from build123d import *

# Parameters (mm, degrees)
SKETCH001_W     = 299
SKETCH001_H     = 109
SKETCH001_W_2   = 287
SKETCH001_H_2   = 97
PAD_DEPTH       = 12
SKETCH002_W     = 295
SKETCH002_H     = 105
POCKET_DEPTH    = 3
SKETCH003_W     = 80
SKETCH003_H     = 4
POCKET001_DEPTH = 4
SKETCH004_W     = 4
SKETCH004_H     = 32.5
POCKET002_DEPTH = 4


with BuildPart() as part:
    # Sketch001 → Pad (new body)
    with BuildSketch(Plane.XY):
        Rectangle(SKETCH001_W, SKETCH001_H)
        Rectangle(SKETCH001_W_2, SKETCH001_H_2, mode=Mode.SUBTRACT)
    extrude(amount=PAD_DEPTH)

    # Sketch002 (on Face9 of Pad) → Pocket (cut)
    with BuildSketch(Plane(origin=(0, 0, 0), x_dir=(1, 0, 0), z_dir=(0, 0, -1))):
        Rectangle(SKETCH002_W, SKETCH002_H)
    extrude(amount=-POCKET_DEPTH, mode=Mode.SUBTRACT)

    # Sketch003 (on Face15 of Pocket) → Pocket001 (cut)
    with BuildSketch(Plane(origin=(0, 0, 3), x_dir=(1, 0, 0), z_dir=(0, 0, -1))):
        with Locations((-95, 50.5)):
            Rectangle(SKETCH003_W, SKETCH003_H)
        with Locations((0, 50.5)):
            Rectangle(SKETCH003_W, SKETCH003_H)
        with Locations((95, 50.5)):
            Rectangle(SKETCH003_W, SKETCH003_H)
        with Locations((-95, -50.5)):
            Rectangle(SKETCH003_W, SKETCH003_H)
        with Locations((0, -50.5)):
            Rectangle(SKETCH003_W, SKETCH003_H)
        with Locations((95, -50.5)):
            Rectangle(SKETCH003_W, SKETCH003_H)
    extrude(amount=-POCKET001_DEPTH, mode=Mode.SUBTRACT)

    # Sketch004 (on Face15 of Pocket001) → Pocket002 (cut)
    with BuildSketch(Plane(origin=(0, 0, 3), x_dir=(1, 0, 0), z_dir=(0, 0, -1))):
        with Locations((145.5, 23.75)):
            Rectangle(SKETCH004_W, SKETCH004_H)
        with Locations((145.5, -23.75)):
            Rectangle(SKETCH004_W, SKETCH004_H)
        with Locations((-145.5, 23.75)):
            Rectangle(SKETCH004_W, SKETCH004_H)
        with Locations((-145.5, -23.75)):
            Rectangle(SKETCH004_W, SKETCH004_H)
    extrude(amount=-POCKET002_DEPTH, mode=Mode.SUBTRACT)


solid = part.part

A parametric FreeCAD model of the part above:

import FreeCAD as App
import Part
import Sketcher
from FreeCAD import Vector


def add_polygon(sketch, points):
    """Adds a closed chain of lines whose ends are joined by coincident constraints."""
    first, n = sketch.GeometryCount, len(points)
    for a, b in zip(points, points[1:] + points[:1]):
        sketch.addGeometry(Part.LineSegment(App.Vector(*a, 0), App.Vector(*b, 0)), False)
    for i in range(n):
        sketch.addConstraint(Sketcher.Constraint("Coincident", first + i, 2, first + (i + 1) % n, 1))

doc = App.newDocument("Part")
body = doc.addObject("PartDesign::Body", "Body")

sketch1 = body.newObject("Sketcher::SketchObject", "Sketch")
sketch1.AttachmentSupport = (doc.getObject("XY_Plane"), [""])
sketch1.MapMode = "FlatFace"
add_polygon(sketch1, [(-150, 54), (-150, -54), (150, -54), (150, 54)])
add_polygon(sketch1, [(144, -48), (-144, -48), (-144, 48), (144, 48)])
sketch1.addConstraint(Sketcher.Constraint("Vertical", 0))
sketch1.addConstraint(Sketcher.Constraint("Horizontal", 1))
sketch1.addConstraint(Sketcher.Constraint("Vertical", 2))
sketch1.addConstraint(Sketcher.Constraint("Horizontal", 3))
sketch1.addConstraint(Sketcher.Constraint("Horizontal", 4))
sketch1.addConstraint(Sketcher.Constraint("Vertical", 5))
sketch1.addConstraint(Sketcher.Constraint("Horizontal", 6))
sketch1.addConstraint(Sketcher.Constraint("Vertical", 7))
sketch1.addConstraint(Sketcher.Constraint("Symmetric", 0, 2, 2, 2, -1, 1))
sketch1.addConstraint(Sketcher.Constraint("Symmetric", 4, 2, 6, 2, -1, 1))
sketch1.addConstraint(Sketcher.Constraint("DistanceX", 1, 1, 1, 2, 299.0))
sketch1.addConstraint(Sketcher.Constraint("DistanceX", 4, 2, 4, 1, 287.0))
sketch1.addConstraint(Sketcher.Constraint("DistanceY", 0, 2, 0, 1, 109.0))
sketch1.addConstraint(Sketcher.Constraint("DistanceY", 5, 1, 5, 2, 97.0))
pad1 = body.newObject("PartDesign::Pad", "Pad")
pad1.Profile = sketch1
pad1.Length = 12

sketch2 = body.newObject("Sketcher::SketchObject", "Sketch001")
sketch2.AttachmentSupport = (doc.getObject("XY_Plane"), [""])
sketch2.MapMode = "FlatFace"
add_polygon(sketch2, [(-148, -52), (-148, 52), (148, 52), (148, -52)])
sketch2.addConstraint(Sketcher.Constraint("Vertical", 0))
sketch2.addConstraint(Sketcher.Constraint("Horizontal", 1))
sketch2.addConstraint(Sketcher.Constraint("Vertical", 2))
sketch2.addConstraint(Sketcher.Constraint("Horizontal", 3))
sketch2.addConstraint(Sketcher.Constraint("Symmetric", 0, 2, 2, 2, -1, 1))
sketch2.addConstraint(Sketcher.Constraint("DistanceX", 1, 1, 1, 2, 295.0))
sketch2.addConstraint(Sketcher.Constraint("DistanceY", 0, 1, 0, 2, 105.0))
pocket1 = body.newObject("PartDesign::Pocket", "Pocket")
pocket1.Profile = sketch2
pocket1.Length = 3
pocket1.Reversed = True

sketch3 = body.newObject("Sketcher::SketchObject", "Sketch002")
sketch3.AttachmentSupport = (doc.getObject("XY_Plane"), [""])
sketch3.MapMode = "FlatFace"
sketch3.AttachmentOffset = App.Placement(Vector(0, 0, 3), App.Rotation())
add_polygon(sketch3, [(-135, -52.5), (-135, -48.5), (-55, -48.5), (-55, -52.5)])
add_polygon(sketch3, [(-40, -52.5), (-40, -48.5), (40, -48.5), (40, -52.5)])
add_polygon(sketch3, [(55, -52.5), (55, -48.5), (135, -48.5), (135, -52.5)])
add_polygon(sketch3, [(-135, 48.5), (-135, 52.5), (-55, 52.5), (-55, 48.5)])
add_polygon(sketch3, [(-40, 48.5), (-40, 52.5), (40, 52.5), (40, 48.5)])
add_polygon(sketch3, [(55, 48.5), (55, 52.5), (135, 52.5), (135, 48.5)])
sketch3.addConstraint(Sketcher.Constraint("Vertical", 0))
sketch3.addConstraint(Sketcher.Constraint("Horizontal", 1))
sketch3.addConstraint(Sketcher.Constraint("Vertical", 2))
sketch3.addConstraint(Sketcher.Constraint("Horizontal", 3))
sketch3.addConstraint(Sketcher.Constraint("Vertical", 4))
sketch3.addConstraint(Sketcher.Constraint("Horizontal", 5))
sketch3.addConstraint(Sketcher.Constraint("Vertical", 6))
sketch3.addConstraint(Sketcher.Constraint("Horizontal", 7))
sketch3.addConstraint(Sketcher.Constraint("Vertical", 8))
sketch3.addConstraint(Sketcher.Constraint("Horizontal", 9))
sketch3.addConstraint(Sketcher.Constraint("Vertical", 10))
sketch3.addConstraint(Sketcher.Constraint("Horizontal", 11))
sketch3.addConstraint(Sketcher.Constraint("Vertical", 12))
sketch3.addConstraint(Sketcher.Constraint("Horizontal", 13))
sketch3.addConstraint(Sketcher.Constraint("Vertical", 14))
sketch3.addConstraint(Sketcher.Constraint("Horizontal", 15))
sketch3.addConstraint(Sketcher.Constraint("Vertical", 16))
sketch3.addConstraint(Sketcher.Constraint("Horizontal", 17))
sketch3.addConstraint(Sketcher.Constraint("Vertical", 18))
sketch3.addConstraint(Sketcher.Constraint("Horizontal", 19))
sketch3.addConstraint(Sketcher.Constraint("Vertical", 20))
sketch3.addConstraint(Sketcher.Constraint("Horizontal", 21))
sketch3.addConstraint(Sketcher.Constraint("Vertical", 22))
sketch3.addConstraint(Sketcher.Constraint("Horizontal", 23))
sketch3.addConstraint(Sketcher.Constraint("Symmetric", 10, 2, 12, 2, -1, 1))
sketch3.addConstraint(Sketcher.Constraint("Symmetric", 8, 2, 14, 2, -1, 1))
sketch3.addConstraint(Sketcher.Constraint("Symmetric", 6, 2, 16, 2, -1, 1))
sketch3.addConstraint(Sketcher.Constraint("Symmetric", 4, 2, 18, 2, -1, 1))
sketch3.addConstraint(Sketcher.Constraint("Symmetric", 2, 2, 20, 2, -1, 1))
sketch3.addConstraint(Sketcher.Constraint("Symmetric", 0, 2, 22, 2, -1, 1))
sketch3.addConstraint(Sketcher.Constraint("Symmetric", 1, 2, 8, 2, -2))
sketch3.addConstraint(Sketcher.Constraint("Symmetric", 3, 2, 10, 2, -2))
sketch3.addConstraint(Sketcher.Constraint("Horizontal", 1, 2, 4, 2))
sketch3.addConstraint(Sketcher.Constraint("Horizontal", 3, 2, 6, 2))
sketch3.addConstraint(Sketcher.Constraint("Vertical", 7, 2, 16, 2))
sketch3.addConstraint(Sketcher.Constraint("Equal", 3, 5))
sketch3.addConstraint(Sketcher.Constraint("DistanceX", 1, 1, 1, 2, 80.0))
sketch3.addConstraint(Sketcher.Constraint("DistanceY", 0, 1, 0, 2, 4.0))
sketch3.addConstraint(Sketcher.Constraint("DistanceX", 0, 2, -1, 1, 135.0))
sketch3.addConstraint(Sketcher.Constraint("DistanceY", 0, 2, 12, 2, 101.0))
pocket2 = body.newObject("PartDesign::Pocket", "Pocket001")
pocket2.Profile = sketch3
pocket2.Length = 4
pocket2.Reversed = True

sketch4 = body.newObject("Sketcher::SketchObject", "Sketch003")
sketch4.AttachmentSupport = (doc.getObject("XY_Plane"), [""])
sketch4.MapMode = "FlatFace"
sketch4.AttachmentOffset = App.Placement(Vector(0, 0, 3), App.Rotation())
add_polygon(sketch4, [(143.5, -40), (143.5, -7.5), (147.5, -7.5), (147.5, -40)])
add_polygon(sketch4, [(143.5, 7.5), (143.5, 40), (147.5, 40), (147.5, 7.5)])
add_polygon(sketch4, [(-147.5, -40), (-147.5, -7.5), (-143.5, -7.5), (-143.5, -40)])
add_polygon(sketch4, [(-147.5, 7.5), (-147.5, 40), (-143.5, 40), (-143.5, 7.5)])
sketch4.addConstraint(Sketcher.Constraint("Vertical", 0))
sketch4.addConstraint(Sketcher.Constraint("Horizontal", 1))
sketch4.addConstraint(Sketcher.Constraint("Vertical", 2))
sketch4.addConstraint(Sketcher.Constraint("Horizontal", 3))
sketch4.addConstraint(Sketcher.Constraint("Vertical", 4))
sketch4.addConstraint(Sketcher.Constraint("Horizontal", 5))
sketch4.addConstraint(Sketcher.Constraint("Vertical", 6))
sketch4.addConstraint(Sketcher.Constraint("Horizontal", 7))
sketch4.addConstraint(Sketcher.Constraint("Vertical", 8))
sketch4.addConstraint(Sketcher.Constraint("Horizontal", 9))
sketch4.addConstraint(Sketcher.Constraint("Vertical", 10))
sketch4.addConstraint(Sketcher.Constraint("Horizontal", 11))
sketch4.addConstraint(Sketcher.Constraint("Vertical", 12))
sketch4.addConstraint(Sketcher.Constraint("Horizontal", 13))
sketch4.addConstraint(Sketcher.Constraint("Vertical", 14))
sketch4.addConstraint(Sketcher.Constraint("Horizontal", 15))
sketch4.addConstraint(Sketcher.Constraint("Symmetric", 6, 2, 8, 2, -1, 1))
sketch4.addConstraint(Sketcher.Constraint("Symmetric", 4, 2, 10, 2, -1, 1))
sketch4.addConstraint(Sketcher.Constraint("Symmetric", 2, 2, 12, 2, -1, 1))
sketch4.addConstraint(Sketcher.Constraint("Symmetric", 0, 2, 14, 2, -1, 1))
sketch4.addConstraint(Sketcher.Constraint("Symmetric", 1, 2, 8, 2, -2))
sketch4.addConstraint(Sketcher.Constraint("Symmetric", 3, 2, 10, 2, -2))
sketch4.addConstraint(Sketcher.Constraint("DistanceX", 1, 1, 1, 2, 4.0))
sketch4.addConstraint(Sketcher.Constraint("DistanceY", 0, 1, 0, 2, 32.5))
sketch4.addConstraint(Sketcher.Constraint("DistanceY", 2, 2, -1, 1, 40.0))
sketch4.addConstraint(Sketcher.Constraint("DistanceX", 8, 2, 0, 2, 291.0))
pocket3 = body.newObject("PartDesign::Pocket", "Pocket002")
pocket3.Profile = sketch4
pocket3.Length = 4
pocket3.Reversed = True

doc.recompute()
